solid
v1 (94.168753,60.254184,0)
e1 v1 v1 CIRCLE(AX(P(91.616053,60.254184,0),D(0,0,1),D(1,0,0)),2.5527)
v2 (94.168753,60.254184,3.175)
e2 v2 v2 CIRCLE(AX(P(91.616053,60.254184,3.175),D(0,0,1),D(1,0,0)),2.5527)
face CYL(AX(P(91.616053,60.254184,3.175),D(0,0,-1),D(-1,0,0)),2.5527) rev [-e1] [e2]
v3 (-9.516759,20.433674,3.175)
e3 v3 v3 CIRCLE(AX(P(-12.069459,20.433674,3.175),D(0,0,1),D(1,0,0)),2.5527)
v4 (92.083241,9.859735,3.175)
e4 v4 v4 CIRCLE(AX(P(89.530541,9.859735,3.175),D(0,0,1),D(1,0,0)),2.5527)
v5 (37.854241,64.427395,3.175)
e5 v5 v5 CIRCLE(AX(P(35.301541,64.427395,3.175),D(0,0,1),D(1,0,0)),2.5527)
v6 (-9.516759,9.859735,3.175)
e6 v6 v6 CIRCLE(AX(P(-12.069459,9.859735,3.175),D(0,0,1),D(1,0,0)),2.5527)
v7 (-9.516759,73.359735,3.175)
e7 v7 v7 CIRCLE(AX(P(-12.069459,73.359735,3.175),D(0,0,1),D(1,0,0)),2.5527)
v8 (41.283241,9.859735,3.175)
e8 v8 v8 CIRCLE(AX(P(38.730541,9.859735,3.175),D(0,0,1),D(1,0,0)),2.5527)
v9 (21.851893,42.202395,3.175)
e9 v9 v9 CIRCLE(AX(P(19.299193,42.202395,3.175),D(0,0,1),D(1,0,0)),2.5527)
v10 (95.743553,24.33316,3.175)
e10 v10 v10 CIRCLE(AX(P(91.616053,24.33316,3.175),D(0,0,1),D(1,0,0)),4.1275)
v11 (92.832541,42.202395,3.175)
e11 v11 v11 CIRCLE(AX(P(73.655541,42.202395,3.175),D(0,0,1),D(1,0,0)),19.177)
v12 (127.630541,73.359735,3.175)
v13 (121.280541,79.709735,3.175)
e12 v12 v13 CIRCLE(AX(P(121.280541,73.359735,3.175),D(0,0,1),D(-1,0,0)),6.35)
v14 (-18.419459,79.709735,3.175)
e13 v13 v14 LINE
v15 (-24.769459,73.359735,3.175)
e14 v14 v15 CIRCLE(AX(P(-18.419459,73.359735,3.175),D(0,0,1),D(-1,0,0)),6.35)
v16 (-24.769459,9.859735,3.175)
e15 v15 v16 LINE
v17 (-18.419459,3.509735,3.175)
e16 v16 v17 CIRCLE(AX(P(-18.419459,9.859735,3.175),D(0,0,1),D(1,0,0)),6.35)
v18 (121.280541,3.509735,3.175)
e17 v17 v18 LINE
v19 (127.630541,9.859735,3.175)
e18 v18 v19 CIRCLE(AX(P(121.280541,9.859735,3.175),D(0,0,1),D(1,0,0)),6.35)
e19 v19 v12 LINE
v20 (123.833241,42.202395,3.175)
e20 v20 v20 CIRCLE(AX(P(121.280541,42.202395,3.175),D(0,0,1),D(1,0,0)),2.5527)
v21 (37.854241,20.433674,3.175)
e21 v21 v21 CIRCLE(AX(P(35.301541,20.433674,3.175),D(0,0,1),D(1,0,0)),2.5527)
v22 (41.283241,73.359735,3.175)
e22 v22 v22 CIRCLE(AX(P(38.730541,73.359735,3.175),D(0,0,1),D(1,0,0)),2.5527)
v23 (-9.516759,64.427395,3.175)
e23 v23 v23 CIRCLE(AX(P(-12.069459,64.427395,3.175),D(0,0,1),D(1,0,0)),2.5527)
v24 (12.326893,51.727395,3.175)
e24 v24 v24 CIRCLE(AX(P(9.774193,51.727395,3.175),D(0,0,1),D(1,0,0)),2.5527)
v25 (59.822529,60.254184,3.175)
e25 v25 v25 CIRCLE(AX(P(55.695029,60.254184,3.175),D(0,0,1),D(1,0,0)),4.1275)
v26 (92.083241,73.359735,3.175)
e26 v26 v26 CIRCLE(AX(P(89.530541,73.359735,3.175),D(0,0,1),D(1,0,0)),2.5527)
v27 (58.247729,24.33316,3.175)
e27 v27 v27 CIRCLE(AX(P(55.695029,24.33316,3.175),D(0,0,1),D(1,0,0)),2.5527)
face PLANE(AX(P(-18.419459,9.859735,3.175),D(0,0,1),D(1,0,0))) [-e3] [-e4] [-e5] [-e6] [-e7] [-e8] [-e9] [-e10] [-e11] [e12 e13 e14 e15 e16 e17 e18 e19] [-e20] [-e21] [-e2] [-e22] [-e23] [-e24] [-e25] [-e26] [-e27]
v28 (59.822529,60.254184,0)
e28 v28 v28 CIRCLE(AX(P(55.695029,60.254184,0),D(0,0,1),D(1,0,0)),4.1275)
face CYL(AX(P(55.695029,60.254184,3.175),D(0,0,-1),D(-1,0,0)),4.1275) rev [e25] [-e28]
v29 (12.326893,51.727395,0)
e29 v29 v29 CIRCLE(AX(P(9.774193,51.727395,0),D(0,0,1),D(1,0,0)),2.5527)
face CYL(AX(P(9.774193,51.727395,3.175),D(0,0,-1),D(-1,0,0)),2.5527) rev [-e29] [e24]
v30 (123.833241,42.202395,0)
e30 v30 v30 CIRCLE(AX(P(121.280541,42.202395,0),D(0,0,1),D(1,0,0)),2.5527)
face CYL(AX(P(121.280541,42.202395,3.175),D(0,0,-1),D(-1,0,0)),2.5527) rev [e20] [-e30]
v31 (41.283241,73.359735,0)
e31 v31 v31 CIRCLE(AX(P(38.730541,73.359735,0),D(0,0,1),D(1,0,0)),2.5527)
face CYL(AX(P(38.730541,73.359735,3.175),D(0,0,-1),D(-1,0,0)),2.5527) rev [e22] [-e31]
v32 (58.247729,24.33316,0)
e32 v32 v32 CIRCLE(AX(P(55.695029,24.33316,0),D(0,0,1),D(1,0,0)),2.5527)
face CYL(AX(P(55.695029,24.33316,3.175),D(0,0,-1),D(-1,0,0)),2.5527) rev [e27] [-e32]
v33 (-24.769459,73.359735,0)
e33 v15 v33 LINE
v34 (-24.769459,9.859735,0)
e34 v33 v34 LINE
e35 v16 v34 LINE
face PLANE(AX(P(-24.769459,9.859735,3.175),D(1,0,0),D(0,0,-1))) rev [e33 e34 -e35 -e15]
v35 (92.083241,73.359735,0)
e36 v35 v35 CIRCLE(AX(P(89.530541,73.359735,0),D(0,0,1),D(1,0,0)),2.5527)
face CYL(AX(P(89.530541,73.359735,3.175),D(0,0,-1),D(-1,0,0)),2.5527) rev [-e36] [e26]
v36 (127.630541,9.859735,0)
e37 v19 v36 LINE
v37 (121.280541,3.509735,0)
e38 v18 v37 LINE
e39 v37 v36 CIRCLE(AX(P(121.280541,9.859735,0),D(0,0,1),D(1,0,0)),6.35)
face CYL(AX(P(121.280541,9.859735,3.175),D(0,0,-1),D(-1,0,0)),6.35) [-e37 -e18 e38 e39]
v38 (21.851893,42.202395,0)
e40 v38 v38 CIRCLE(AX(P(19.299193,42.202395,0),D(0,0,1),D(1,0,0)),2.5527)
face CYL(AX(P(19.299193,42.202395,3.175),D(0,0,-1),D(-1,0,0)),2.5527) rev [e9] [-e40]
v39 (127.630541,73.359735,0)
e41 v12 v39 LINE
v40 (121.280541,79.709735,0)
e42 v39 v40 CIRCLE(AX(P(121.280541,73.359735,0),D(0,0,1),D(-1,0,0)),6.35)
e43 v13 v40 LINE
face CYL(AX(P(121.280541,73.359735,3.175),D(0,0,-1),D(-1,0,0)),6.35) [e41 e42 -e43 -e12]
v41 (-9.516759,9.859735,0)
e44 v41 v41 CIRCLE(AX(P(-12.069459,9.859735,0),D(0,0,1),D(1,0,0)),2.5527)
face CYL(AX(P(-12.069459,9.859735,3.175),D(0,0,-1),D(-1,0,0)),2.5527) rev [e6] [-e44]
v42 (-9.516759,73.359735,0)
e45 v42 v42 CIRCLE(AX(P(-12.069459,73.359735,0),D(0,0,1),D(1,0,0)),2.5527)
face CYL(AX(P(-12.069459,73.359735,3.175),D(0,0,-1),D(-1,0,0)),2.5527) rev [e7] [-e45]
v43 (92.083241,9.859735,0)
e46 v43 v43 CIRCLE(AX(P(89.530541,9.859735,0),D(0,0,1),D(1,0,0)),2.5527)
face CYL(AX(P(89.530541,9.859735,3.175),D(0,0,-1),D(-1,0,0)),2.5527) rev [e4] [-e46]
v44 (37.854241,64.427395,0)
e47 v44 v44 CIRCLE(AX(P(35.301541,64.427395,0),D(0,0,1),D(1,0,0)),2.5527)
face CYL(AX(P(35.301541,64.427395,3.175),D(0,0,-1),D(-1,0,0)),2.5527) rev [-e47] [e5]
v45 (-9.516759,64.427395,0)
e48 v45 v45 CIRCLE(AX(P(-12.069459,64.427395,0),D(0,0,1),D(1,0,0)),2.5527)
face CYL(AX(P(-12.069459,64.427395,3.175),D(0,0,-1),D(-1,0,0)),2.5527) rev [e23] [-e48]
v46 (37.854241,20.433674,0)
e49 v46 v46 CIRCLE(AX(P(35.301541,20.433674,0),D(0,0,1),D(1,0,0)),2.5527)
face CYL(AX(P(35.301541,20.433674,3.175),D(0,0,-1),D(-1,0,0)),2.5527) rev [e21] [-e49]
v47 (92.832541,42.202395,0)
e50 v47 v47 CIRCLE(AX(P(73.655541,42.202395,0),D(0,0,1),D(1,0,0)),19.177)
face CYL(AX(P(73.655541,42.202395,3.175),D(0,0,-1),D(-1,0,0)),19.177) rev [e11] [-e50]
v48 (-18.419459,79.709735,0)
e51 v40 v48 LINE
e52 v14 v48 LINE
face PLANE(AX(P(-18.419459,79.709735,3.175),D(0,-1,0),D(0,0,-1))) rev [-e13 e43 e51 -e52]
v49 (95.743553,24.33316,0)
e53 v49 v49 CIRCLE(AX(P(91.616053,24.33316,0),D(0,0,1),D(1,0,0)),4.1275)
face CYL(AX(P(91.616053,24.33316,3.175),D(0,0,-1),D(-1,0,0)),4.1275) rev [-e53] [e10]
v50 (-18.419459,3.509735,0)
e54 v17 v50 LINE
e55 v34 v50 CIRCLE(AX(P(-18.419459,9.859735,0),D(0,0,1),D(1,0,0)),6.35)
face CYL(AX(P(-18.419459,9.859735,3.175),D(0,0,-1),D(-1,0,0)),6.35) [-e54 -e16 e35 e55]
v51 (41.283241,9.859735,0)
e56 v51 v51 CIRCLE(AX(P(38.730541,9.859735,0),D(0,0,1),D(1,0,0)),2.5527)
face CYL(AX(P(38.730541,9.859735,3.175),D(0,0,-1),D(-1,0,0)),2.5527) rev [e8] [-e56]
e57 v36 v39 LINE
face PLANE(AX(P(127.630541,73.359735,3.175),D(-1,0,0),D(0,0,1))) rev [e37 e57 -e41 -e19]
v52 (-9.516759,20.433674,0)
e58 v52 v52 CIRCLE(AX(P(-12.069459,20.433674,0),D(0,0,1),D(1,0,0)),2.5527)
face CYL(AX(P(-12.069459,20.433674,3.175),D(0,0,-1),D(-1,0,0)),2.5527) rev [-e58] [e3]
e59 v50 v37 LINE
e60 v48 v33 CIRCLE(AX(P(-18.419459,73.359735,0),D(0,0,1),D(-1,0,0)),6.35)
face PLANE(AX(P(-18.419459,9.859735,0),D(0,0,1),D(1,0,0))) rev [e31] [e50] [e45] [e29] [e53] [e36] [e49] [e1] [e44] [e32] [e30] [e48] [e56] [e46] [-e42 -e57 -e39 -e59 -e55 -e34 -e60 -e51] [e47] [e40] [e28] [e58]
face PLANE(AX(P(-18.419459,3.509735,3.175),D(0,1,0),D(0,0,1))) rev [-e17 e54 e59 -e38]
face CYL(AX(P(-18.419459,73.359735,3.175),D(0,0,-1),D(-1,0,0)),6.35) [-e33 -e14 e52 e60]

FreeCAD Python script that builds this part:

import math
import FreeCAD as App
import Part
import Sketcher

V = App.Vector
Q = App.Units.Quantity

doc = App.newDocument("Part")
body = doc.addObject("PartDesign::Body", "Body")

# Sketch on XY plane
sketch1 = body.newObject("Sketcher::SketchObject", "Sketch")
sketch1.AttachmentSupport = (doc.getObject("XY_Plane"), [""])
sketch1.MapMode = "FlatFace"
sketch1.addGeometry([
    Part.LineSegment(V(-24.8, 73.4, 0), V(-24.8, 9.9, 0)),  # 0
    Part.ArcOfCircle(Part.Circle(V(-18.4, 9.9, 0), V(0, 0, 1), 6.3), math.radians(180), math.radians(270)),  # 1
    Part.LineSegment(V(-18.4, 3.5, 0), V(121.3, 3.5, 0)),  # 2
    Part.ArcOfCircle(Part.Circle(V(121.3, 9.9, 0), V(0, 0, 1), 6.3), math.radians(-90), math.radians(0)),  # 3
    Part.LineSegment(V(127.6, 9.9, 0), V(127.6, 73.4, 0)),  # 4
    Part.ArcOfCircle(Part.Circle(V(121.3, 73.4, 0), V(0, 0, 1), 6.4), math.radians(0), math.radians(90)),  # 5
    Part.LineSegment(V(121.3, 79.7, 0), V(-18.4, 79.7, 0)),  # 6
    Part.ArcOfCircle(Part.Circle(V(-18.4, 73.4, 0), V(0, 0, 1), 6.3), math.radians(90), math.radians(180)),  # 7
    Part.Circle(V(89.5, 9.9, 0), V(0, 0, 1), 2.6),  # 8
    Part.Circle(V(91.6, 24.3, 0), V(0, 0, 1), 4.1),  # 9
    Part.Circle(V(55.7, 24.3, 0), V(0, 0, 1), 2.6),  # 10
    Part.Circle(V(38.7, 9.9, 0), V(0, 0, 1), 2.6),  # 11
    Part.Circle(V(35.3, 20.4, 0), V(0, 0, 1), 2.6),  # 12
    Part.Circle(V(-12.1, 9.9, 0), V(0, 0, 1), 2.6),  # 13
    Part.Circle(V(-12.1, 20.4, 0), V(0, 0, 1), 2.6),  # 14
    Part.Circle(V(121.3, 42.2, 0), V(0, 0, 1), 2.6),  # 15
    Part.Circle(V(73.7, 42.2, 0), V(0, 0, 1), 19.2),  # 16
    Part.Circle(V(91.6, 60.3, 0), V(0, 0, 1), 2.6),  # 17
    Part.Circle(V(89.5, 73.4, 0), V(0, 0, 1), 2.6),  # 18
    Part.Circle(V(55.7, 60.3, 0), V(0, 0, 1), 4.1),  # 19
    Part.Circle(V(19.3, 42.2, 0), V(0, 0, 1), 2.6),  # 20
    Part.Circle(V(9.8, 51.7, 0), V(0, 0, 1), 2.6),  # 21
    Part.Circle(V(35.3, 64.4, 0), V(0, 0, 1), 2.6),  # 22
    Part.Circle(V(38.7, 73.4, 0), V(0, 0, 1), 2.6),  # 23
    Part.Circle(V(-12.1, 64.4, 0), V(0, 0, 1), 2.6),  # 24
    Part.Circle(V(-12.1, 73.4, 0), V(0, 0, 1), 2.6),  # 25
], False)
sketch1.addConstraint([
    Sketcher.Constraint("Tangent", 0, 2, 1, 1),
    Sketcher.Constraint("Tangent", 1, 2, 2, 1),
    Sketcher.Constraint("Tangent", 2, 2, 3, 1),
    Sketcher.Constraint("Tangent", 3, 2, 4, 1),
    Sketcher.Constraint("Tangent", 4, 2, 5, 1),
    Sketcher.Constraint("Tangent", 5, 2, 6, 1),
    Sketcher.Constraint("Tangent", 6, 2, 7, 1),
    Sketcher.Constraint("Tangent", 7, 2, 0, 1),
    Sketcher.Constraint("Vertical", 0),
    Sketcher.Constraint("Horizontal", 2),
    Sketcher.Constraint("Vertical", 4),
    Sketcher.Constraint("Horizontal", 6),
    Sketcher.Constraint("Equal", 1, 3),
    Sketcher.Constraint("Equal", 3, 5),
    Sketcher.Constraint("Equal", 5, 7),
    Sketcher.Constraint("Equal", 8, 10),
    Sketcher.Constraint("Equal", 10, 11),
    Sketcher.Constraint("Equal", 11, 12),
    Sketcher.Constraint("Equal", 12, 13),
    Sketcher.Constraint("Equal", 13, 14),
    Sketcher.Constraint("Equal", 14, 15),
    Sketcher.Constraint("Equal", 15, 17),
    Sketcher.Constraint("Equal", 17, 18),
    Sketcher.Constraint("Equal", 9, 19),
    Sketcher.Constraint("Equal", 18, 20),
    Sketcher.Constraint("Equal", 20, 21),
    Sketcher.Constraint("Equal", 21, 22),
    Sketcher.Constraint("Equal", 22, 23),
    Sketcher.Constraint("Equal", 23, 24),
    Sketcher.Constraint("Equal", 24, 25),
    Sketcher.Constraint("Horizontal", 3, 3, 8, 3),
    Sketcher.Constraint("Horizontal", 9, 3, 10, 3),
    Sketcher.Constraint("Horizontal", 8, 3, 11, 3),
    Sketcher.Constraint("Horizontal", 11, 3, 13, 3),
    Sketcher.Constraint("Horizontal", 12, 3, 14, 3),
    Sketcher.Constraint("Horizontal", 15, 3, 16, 3),
    Sketcher.Constraint("Horizontal", 7, 3, 18, 3),
    Sketcher.Constraint("Horizontal", 17, 3, 19, 3),
    Sketcher.Constraint("Horizontal", 16, 3, 20, 3),
    Sketcher.Constraint("Horizontal", 18, 3, 23, 3),
    Sketcher.Constraint("Horizontal", 22, 3, 24, 3),
    Sketcher.Constraint("Horizontal", 23, 3, 25, 3),
    Sketcher.Constraint("Vertical", 13, 3, 14, 3),
    Sketcher.Constraint("Vertical", 5, 3, 15, 3),
    Sketcher.Constraint("Vertical", 9, 3, 17, 3),
    Sketcher.Constraint("Vertical", 8, 3, 18, 3),
    Sketcher.Constraint("Vertical", 10, 3, 19, 3),
    Sketcher.Constraint("Vertical", 12, 3, 22, 3),
    Sketcher.Constraint("Vertical", 11, 3, 23, 3),
    Sketcher.Constraint("Vertical", 14, 3, 24, 3),
    Sketcher.Constraint("Vertical", 24, 3, 25, 3),
    Sketcher.Constraint("Diameter", 16, Q("1.51 in")),
    Sketcher.Constraint("Radius", 1, Q("0.25 in")),
    Sketcher.Constraint("Diameter", 8, Q("0.201 in")),
    Sketcher.Constraint("Diameter", 9, Q("0.325 in")),
    Sketcher.Constraint("DistanceX", 2, 1, 2, 2, Q("5.5 in")),
    Sketcher.Constraint("DistanceY", 0, 2, 0, 1, Q("2.5 in")),
    Sketcher.Constraint("DistanceX", 11, 3, 8, 3, Q("2 in")),
    Sketcher.Constraint("DistanceX", 13, 3, 11, 3, Q("2 in")),
    Sketcher.Constraint("DistanceY", 21, 3, 22, 3, Q("0.5 in")),
    Sketcher.Constraint("DistanceX", 0, 2, 13, 3, Q("0.5 in")),
    Sketcher.Constraint("DistanceX", 12, 3, 16, 3, Q("1.51 in")),
    Sketcher.Constraint("DistanceX", 12, 3, 11, 3, Q("0.135 in")),
    Sketcher.Constraint("DistanceX", 21, 3, 20, 3, Q("0.375 in")),
    Sketcher.Constraint("DistanceY", 20, 3, 21, 3, Q("0.375 in")),
    Sketcher.Constraint("DistanceX", 1, 3, -1, 1, 18.419459),
    Sketcher.Constraint("DistanceY", -1, 1, 9, 3, 24.33316),
    Sketcher.Constraint("DistanceX", -1, 1, 10, 3, 55.695029),
    Sketcher.Constraint("DistanceY", 11, 3, 12, 3, 10.573939),
    Sketcher.Constraint("DistanceY", 15, 3, 5, 3, 31.15734),
    Sketcher.Constraint("DistanceY", 16, 3, 17, 3, 18.051789),
    Sketcher.Constraint("DistanceX", 20, 3, 12, 3, 16.002348),
    Sketcher.Constraint("DistanceY", -1, 1, 1, 3, 9.859735),
    Sketcher.Constraint("DistanceX", -1, 1, 9, 3, 91.616053),
])
pad1 = body.newObject("PartDesign::Pad", "Pad")
pad1.Profile = sketch1
pad1.Length = Q("0.125 in")

doc.recompute()
